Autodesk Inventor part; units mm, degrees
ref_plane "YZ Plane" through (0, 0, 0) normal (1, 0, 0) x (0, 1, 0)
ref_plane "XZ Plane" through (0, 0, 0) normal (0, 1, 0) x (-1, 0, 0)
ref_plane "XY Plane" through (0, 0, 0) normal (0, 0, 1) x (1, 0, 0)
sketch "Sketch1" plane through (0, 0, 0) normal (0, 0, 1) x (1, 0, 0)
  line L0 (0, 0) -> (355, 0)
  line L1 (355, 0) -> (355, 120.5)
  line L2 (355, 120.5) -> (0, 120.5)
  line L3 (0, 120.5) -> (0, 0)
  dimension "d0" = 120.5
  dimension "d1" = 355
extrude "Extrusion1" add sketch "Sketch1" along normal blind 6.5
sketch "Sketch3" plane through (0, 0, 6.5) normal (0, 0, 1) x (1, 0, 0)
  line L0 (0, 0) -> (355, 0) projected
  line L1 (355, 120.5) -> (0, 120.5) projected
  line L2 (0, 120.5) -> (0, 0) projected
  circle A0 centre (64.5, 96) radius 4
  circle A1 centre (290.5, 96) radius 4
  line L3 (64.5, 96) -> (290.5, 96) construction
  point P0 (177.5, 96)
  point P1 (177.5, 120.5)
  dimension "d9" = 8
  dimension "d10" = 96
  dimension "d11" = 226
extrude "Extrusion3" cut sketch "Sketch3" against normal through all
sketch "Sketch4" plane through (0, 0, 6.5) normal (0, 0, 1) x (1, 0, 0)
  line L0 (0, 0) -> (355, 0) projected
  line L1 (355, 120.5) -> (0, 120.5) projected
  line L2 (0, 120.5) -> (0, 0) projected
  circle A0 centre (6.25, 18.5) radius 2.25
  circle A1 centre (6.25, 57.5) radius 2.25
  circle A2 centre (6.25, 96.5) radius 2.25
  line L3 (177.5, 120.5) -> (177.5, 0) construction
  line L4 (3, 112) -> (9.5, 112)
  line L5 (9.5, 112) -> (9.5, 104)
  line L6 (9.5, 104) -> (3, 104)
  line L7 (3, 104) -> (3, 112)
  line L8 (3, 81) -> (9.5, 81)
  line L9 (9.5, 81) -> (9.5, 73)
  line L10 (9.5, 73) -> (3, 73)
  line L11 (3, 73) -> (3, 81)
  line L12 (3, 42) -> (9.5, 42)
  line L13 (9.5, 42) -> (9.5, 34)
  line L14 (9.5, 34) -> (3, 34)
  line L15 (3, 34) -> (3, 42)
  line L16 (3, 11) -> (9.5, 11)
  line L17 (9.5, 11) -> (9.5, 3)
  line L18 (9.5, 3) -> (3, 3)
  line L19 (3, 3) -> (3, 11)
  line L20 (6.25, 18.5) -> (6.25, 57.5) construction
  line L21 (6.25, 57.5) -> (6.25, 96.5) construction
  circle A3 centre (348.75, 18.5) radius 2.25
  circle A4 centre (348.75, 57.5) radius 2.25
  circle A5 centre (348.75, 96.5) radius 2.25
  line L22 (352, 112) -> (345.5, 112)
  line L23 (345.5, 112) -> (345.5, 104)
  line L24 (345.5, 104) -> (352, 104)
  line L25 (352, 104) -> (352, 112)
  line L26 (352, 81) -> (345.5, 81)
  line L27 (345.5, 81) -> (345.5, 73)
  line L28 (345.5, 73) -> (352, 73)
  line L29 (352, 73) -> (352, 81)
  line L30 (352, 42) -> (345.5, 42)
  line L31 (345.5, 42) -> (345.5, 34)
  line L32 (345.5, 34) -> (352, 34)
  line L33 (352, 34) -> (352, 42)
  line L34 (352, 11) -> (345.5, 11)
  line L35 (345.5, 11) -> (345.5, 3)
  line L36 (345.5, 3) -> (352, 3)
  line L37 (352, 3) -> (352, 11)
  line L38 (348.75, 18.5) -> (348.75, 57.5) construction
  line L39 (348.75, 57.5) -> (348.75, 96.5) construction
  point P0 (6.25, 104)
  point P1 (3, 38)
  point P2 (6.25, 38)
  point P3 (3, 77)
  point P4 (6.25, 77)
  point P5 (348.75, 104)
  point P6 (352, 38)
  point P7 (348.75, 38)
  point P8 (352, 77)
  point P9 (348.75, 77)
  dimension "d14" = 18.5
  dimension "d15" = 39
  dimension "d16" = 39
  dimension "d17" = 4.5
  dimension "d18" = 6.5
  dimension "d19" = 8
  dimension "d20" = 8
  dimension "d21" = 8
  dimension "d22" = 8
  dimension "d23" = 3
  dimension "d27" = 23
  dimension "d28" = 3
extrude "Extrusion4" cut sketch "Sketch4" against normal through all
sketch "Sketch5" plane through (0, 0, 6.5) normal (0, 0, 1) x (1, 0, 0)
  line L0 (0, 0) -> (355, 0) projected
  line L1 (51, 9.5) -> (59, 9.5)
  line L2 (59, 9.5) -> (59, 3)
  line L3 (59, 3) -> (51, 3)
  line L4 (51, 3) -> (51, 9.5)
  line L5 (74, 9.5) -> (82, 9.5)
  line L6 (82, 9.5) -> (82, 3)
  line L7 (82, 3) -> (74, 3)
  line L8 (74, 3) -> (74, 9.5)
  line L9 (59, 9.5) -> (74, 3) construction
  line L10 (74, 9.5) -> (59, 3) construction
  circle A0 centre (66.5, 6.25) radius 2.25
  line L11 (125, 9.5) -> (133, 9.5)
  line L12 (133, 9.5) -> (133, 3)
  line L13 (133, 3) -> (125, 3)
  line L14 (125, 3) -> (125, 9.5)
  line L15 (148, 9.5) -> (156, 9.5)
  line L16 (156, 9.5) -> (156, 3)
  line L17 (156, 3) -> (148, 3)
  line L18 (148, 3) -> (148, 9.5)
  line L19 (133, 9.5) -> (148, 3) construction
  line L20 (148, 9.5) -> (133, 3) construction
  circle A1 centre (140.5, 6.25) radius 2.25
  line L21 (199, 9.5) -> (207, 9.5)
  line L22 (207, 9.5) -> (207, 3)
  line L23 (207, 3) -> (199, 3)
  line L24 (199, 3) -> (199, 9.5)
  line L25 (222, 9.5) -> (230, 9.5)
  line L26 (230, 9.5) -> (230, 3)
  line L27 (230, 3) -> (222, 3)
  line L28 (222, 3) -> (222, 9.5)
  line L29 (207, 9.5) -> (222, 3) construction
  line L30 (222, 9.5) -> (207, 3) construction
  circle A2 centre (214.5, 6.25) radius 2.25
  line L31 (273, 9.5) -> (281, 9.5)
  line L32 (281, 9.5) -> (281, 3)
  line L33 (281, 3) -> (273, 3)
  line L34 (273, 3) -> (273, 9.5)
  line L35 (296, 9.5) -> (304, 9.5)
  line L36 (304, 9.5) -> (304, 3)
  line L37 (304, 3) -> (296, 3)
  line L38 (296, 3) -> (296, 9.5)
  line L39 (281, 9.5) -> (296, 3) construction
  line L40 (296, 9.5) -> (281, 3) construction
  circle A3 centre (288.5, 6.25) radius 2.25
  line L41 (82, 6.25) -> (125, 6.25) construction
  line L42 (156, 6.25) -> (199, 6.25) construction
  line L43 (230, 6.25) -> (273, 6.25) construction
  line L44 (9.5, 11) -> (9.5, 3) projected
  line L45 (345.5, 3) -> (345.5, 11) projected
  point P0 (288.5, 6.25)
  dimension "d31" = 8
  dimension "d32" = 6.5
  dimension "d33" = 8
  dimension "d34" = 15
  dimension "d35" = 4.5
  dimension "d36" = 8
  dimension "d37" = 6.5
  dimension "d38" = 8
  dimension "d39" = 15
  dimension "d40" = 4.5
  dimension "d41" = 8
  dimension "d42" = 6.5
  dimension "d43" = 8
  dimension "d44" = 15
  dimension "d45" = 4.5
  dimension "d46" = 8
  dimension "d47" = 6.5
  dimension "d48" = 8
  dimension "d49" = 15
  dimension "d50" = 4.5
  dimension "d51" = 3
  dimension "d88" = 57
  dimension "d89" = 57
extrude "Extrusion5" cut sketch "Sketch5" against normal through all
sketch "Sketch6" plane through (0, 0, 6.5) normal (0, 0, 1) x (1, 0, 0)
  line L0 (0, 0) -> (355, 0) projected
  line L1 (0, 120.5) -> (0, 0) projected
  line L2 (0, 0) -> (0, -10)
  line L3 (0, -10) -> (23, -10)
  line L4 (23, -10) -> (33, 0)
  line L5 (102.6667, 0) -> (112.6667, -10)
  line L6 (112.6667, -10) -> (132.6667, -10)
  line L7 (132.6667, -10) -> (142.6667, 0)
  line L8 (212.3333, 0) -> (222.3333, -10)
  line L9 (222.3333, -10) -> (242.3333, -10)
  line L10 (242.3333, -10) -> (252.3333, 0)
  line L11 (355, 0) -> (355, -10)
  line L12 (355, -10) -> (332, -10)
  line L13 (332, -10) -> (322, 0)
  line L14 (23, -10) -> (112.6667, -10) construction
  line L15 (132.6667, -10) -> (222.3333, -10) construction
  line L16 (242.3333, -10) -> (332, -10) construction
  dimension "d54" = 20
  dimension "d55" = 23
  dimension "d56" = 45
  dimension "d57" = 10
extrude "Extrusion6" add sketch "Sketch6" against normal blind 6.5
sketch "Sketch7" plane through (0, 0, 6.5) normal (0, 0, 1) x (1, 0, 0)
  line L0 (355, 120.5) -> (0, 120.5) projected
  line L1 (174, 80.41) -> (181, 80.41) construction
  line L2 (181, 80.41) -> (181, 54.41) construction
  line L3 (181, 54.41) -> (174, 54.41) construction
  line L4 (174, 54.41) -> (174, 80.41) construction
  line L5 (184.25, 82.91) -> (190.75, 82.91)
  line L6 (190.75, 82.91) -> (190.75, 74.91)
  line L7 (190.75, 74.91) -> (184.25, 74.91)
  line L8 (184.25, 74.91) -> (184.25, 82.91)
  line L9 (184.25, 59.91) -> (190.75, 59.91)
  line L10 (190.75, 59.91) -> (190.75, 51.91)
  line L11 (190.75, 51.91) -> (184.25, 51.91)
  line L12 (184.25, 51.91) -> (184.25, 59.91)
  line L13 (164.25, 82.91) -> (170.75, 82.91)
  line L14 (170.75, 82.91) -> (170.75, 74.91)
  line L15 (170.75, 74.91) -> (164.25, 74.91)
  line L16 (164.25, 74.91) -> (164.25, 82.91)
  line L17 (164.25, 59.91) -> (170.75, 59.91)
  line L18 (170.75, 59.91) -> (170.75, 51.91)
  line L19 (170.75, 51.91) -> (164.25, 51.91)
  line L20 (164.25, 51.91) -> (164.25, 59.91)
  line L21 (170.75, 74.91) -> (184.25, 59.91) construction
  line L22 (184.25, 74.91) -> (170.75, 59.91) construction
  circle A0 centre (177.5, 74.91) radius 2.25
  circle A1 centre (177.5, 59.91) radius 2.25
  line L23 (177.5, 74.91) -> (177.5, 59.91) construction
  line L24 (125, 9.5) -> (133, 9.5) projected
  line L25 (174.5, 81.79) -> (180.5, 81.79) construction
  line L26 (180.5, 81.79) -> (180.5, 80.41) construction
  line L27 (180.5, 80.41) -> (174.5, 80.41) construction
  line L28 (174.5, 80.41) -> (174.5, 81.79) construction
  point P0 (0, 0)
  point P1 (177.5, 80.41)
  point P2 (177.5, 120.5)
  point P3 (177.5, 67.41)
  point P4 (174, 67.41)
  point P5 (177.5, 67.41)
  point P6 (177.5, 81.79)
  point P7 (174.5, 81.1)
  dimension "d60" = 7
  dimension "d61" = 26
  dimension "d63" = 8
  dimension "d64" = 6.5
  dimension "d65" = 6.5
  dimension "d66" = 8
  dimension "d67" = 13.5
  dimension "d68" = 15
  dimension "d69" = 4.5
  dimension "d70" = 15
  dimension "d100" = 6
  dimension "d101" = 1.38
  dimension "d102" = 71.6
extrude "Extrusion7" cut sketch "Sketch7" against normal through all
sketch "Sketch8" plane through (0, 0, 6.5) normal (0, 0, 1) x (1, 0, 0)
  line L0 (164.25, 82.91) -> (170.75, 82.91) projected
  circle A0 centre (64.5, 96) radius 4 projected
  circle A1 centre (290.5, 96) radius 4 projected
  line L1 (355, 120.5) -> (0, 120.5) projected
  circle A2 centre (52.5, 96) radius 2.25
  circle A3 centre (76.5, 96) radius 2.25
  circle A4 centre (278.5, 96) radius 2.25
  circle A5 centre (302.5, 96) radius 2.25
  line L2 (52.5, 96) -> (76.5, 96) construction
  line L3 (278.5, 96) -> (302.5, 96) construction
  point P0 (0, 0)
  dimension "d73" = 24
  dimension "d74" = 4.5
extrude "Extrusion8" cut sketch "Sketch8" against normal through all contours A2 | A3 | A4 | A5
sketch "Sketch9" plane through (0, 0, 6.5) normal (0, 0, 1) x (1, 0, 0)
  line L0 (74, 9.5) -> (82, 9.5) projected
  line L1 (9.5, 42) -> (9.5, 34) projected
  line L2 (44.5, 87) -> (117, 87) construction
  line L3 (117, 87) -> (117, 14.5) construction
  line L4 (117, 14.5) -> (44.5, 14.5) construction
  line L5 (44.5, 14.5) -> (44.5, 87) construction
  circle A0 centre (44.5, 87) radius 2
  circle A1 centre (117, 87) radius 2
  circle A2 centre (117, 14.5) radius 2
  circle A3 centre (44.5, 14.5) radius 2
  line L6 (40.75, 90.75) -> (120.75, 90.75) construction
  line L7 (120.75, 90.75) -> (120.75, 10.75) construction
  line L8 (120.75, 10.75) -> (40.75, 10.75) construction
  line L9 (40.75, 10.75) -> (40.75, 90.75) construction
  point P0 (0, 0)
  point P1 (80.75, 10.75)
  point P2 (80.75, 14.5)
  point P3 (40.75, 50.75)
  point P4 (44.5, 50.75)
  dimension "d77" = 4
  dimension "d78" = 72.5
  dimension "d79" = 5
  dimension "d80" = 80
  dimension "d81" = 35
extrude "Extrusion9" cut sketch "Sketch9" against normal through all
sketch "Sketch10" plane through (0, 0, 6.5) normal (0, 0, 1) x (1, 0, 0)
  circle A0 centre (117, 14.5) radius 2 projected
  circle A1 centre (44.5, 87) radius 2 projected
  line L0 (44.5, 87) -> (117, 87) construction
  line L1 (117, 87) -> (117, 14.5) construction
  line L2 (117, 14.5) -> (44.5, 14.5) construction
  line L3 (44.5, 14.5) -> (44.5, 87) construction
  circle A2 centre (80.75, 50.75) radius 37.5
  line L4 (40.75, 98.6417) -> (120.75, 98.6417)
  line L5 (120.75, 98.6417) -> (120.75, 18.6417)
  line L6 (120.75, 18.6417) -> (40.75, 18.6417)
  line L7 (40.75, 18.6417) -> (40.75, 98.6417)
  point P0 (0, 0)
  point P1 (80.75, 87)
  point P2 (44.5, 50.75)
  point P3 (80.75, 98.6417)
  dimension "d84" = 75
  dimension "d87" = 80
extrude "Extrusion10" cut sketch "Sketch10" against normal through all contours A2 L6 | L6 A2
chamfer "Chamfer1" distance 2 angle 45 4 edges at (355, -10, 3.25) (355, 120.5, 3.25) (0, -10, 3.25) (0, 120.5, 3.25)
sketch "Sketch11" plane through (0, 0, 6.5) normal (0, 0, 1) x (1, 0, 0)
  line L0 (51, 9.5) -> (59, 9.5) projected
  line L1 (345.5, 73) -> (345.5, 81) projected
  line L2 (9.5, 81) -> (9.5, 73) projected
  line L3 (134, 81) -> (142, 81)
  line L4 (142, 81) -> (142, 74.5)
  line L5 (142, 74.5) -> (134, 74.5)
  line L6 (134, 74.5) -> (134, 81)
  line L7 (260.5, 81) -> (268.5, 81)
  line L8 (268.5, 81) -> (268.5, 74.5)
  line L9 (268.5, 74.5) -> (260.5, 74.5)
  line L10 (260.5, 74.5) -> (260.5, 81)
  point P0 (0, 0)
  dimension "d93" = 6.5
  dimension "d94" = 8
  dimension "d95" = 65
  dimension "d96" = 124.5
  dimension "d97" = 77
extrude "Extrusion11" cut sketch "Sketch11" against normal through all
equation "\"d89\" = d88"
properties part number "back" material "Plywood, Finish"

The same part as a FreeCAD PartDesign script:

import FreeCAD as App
import Part
import Sketcher


def edges_at(feature, points):
    """Names of the edges that pass closest to the given points."""
    edges = feature.Shape.Edges
    near = lambda p: min(range(len(edges)), key=lambda i: edges[i].distToShape(Part.Vertex(*p))[0])
    return sorted({f"Edge{near(p) + 1}" for p in points})

doc = App.newDocument("Part")
body = doc.addObject("PartDesign::Body", "Body")

# Sketch on XY plane
sketch1 = doc.addObject("Sketcher::SketchObject", "Sketch")
body.addObject(sketch1)
sketch1.AttachmentSupport = (doc.XY_Plane, [""])
sketch1.MapMode = "FlatFace"
sketch1.addGeometry([
    Part.LineSegment(App.Vector(0, 120, 0), App.Vector(0, 0, 0)),
    Part.LineSegment(App.Vector(0, 0, 0), App.Vector(355, 0, 0)),
    Part.LineSegment(App.Vector(355, 0, 0), App.Vector(355, 120, 0)),
    Part.LineSegment(App.Vector(355, 120, 0), App.Vector(0, 120, 0)),
], False)
sketch1.addConstraint([
    Sketcher.Constraint("Coincident", 0, 2, 1, 1),
    Sketcher.Constraint("Coincident", 1, 2, 2, 1),
    Sketcher.Constraint("Coincident", 2, 2, 3, 1),
    Sketcher.Constraint("Coincident", 3, 2, 0, 1),
    Sketcher.Constraint("Vertical", 0),
    Sketcher.Constraint("Horizontal", 1),
    Sketcher.Constraint("Vertical", 2),
    Sketcher.Constraint("Horizontal", 3),
    Sketcher.Constraint("Coincident", 0, 2, -1, 1),
    Sketcher.Constraint("DistanceX", 1, 1, 1, 2, 355.0),
    Sketcher.Constraint("DistanceY", 0, 2, 0, 1, 120.5),
])
pad1 = doc.addObject("PartDesign::Pad", "Pad")
body.addObject(pad1)
pad1.Profile = sketch1
pad1.Length = 6.5

# Sketch on XY plane
sketch2 = doc.addObject("Sketcher::SketchObject", "Sketch001")
body.addObject(sketch2)
sketch2.AttachmentSupport = (doc.XY_Plane, [""])
sketch2.MapMode = "FlatFace"
sketch2.AttachmentOffset = App.Placement(App.Vector(0, 0, 6.5), App.Rotation())
sketch2.addGeometry([
    Part.Circle(App.Vector(64.5, 96, 0), App.Vector(0, 0, 1), 4),
    Part.Circle(App.Vector(290.5, 96, 0), App.Vector(0, 0, 1), 4),
], False)
sketch2.addConstraint([
    Sketcher.Constraint("Equal", 0, 1),
    Sketcher.Constraint("Horizontal", 0, 3, 1, 3),
    Sketcher.Constraint("Diameter", 0, 8.0),
    Sketcher.Constraint("DistanceY", -1, 1, 0, 3, 96.0),
    Sketcher.Constraint("DistanceX", 0, 3, 1, 3, 226.0),
    Sketcher.Constraint("DistanceX", -1, 1, 0, 3, 64.5),
])
pocket1 = doc.addObject("PartDesign::Pocket", "Pocket")
body.addObject(pocket1)
pocket1.Profile = sketch2
pocket1.Type = "ThroughAll"

# Sketch on XY plane
sketch3 = doc.addObject("Sketcher::SketchObject", "Sketch002")
body.addObject(sketch3)
sketch3.AttachmentSupport = (doc.XY_Plane, [""])
sketch3.MapMode = "FlatFace"
sketch3.AttachmentOffset = App.Placement(App.Vector(0, 0, 6.5), App.Rotation())
sketch3.addGeometry([
    Part.Circle(App.Vector(6.2, 18.5, 0), App.Vector(0, 0, 1), 2.2),  # 0
    Part.Circle(App.Vector(6.2, 57.5, 0), App.Vector(0, 0, 1), 2.2),  # 1
    Part.Circle(App.Vector(6.2, 96.5, 0), App.Vector(0, 0, 1), 2.2),  # 2
    Part.LineSegment(App.Vector(9.5, 112, 0), App.Vector(3, 112, 0)),  # 3
    Part.LineSegment(App.Vector(3, 112, 0), App.Vector(3, 104, 0)),  # 4
    Part.LineSegment(App.Vector(3, 104, 0), App.Vector(9.5, 104, 0)),  # 5
    Part.LineSegment(App.Vector(9.5, 104, 0), App.Vector(9.5, 112, 0)),  # 6
    Part.LineSegment(App.Vector(9.5, 81, 0), App.Vector(3, 81, 0)),  # 7
    Part.LineSegment(App.Vector(3, 81, 0), App.Vector(3, 73, 0)),  # 8
    Part.LineSegment(App.Vector(3, 73, 0), App.Vector(9.5, 73, 0)),  # 9
    Part.LineSegment(App.Vector(9.5, 73, 0), App.Vector(9.5, 81, 0)),  # 10
    Part.LineSegment(App.Vector(9.5, 42, 0), App.Vector(3, 42, 0)),  # 11
    Part.LineSegment(App.Vector(3, 42, 0), App.Vector(3, 34, 0)),  # 12
    Part.LineSegment(App.Vector(3, 34, 0), App.Vector(9.5, 34, 0)),  # 13
    Part.LineSegment(App.Vector(9.5, 34, 0), App.Vector(9.5, 42, 0)),  # 14
    Part.LineSegment(App.Vector(9.5, 11, 0), App.Vector(3, 11, 0)),  # 15
    Part.LineSegment(App.Vector(3, 11, 0), App.Vector(3, 3, 0)),  # 16
    Part.LineSegment(App.Vector(3, 3, 0), App.Vector(9.5, 3, 0)),  # 17
    Part.LineSegment(App.Vector(9.5, 3, 0), App.Vector(9.5, 11, 0)),  # 18
    Part.Circle(App.Vector(348.8, 18.5, 0), App.Vector(0, 0, 1), 2.2),  # 19
    Part.Circle(App.Vector(348.8, 57.5, 0), App.Vector(0, 0, 1), 2.2),  # 20
    Part.Circle(App.Vector(348.8, 96.5, 0), App.Vector(0, 0, 1), 2.2),  # 21
    Part.LineSegment(App.Vector(352, 104, 0), App.Vector(352, 112, 0)),  # 22
    Part.LineSegment(App.Vector(352, 112, 0), App.Vector(345.5, 112, 0)),  # 23
    Part.LineSegment(App.Vector(345.5, 112, 0), App.Vector(345.5, 104, 0)),  # 24
    Part.LineSegment(App.Vector(345.5, 104, 0), App.Vector(352, 104, 0)),  # 25
    Part.LineSegment(App.Vector(352, 73, 0), App.Vector(352, 81, 0)),  # 26
    Part.LineSegment(App.Vector(352, 81, 0), App.Vector(345.5, 81, 0)),  # 27
    Part.LineSegment(App.Vector(345.5, 81, 0), App.Vector(345.5, 73, 0)),  # 28
    Part.LineSegment(App.Vector(345.5, 73, 0), App.Vector(352, 73, 0)),  # 29
    Part.LineSegment(App.Vector(352, 34, 0), App.Vector(352, 42, 0)),  # 30
    Part.LineSegment(App.Vector(352, 42, 0), App.Vector(345.5, 42, 0)),  # 31
    Part.LineSegment(App.Vector(345.5, 42, 0), App.Vector(345.5, 34, 0)),  # 32
    Part.LineSegment(App.Vector(345.5, 34, 0), App.Vector(352, 34, 0)),  # 33
    Part.LineSegment(App.Vector(352, 3, 0), App.Vector(352, 11, 0)),  # 34
    Part.LineSegment(App.Vector(352, 11, 0), App.Vector(345.5, 11, 0)),  # 35
    Part.LineSegment(App.Vector(345.5, 11, 0), App.Vector(345.5, 3, 0)),  # 36
    Part.LineSegment(App.Vector(345.5, 3, 0), App.Vector(352, 3, 0)),  # 37
], False)
sketch3.addConstraint([
    Sketcher.Constraint("Coincident", 3, 2, 4, 1),
    Sketcher.Constraint("Coincident", 4, 2, 5, 1),
    Sketcher.Constraint("Coincident", 5, 2, 6, 1),
    Sketcher.Constraint("Coincident", 6, 2, 3, 1),
    Sketcher.Constraint("Coincident", 7, 2, 8, 1),
    Sketcher.Constraint("Coincident", 8, 2, 9, 1),
    Sketcher.Constraint("Coincident", 9, 2, 10, 1),
    Sketcher.Constraint("Coincident", 10, 2, 7, 1),
    Sketcher.Constraint("Coincident", 11, 2, 12, 1),
    Sketcher.Constraint("Coincident", 12, 2, 13, 1),
    Sketcher.Constraint("Coincident", 13, 2, 14, 1),
    Sketcher.Constraint("Coincident", 14, 2, 11, 1),
    Sketcher.Constraint("Coincident", 15, 2, 16, 1),
    Sketcher.Constraint("Coincident", 16, 2, 17, 1),
    Sketcher.Constraint("Coincident", 17, 2, 18, 1),
    Sketcher.Constraint("Coincident", 18, 2, 15, 1),
    Sketcher.Constraint("Coincident", 22, 2, 23, 1),
    Sketcher.Constraint("Coincident", 23, 2, 24, 1),
    Sketcher.Constraint("Coincident", 24, 2, 25, 1),
    Sketcher.Constraint("Coincident", 25, 2, 22, 1),
    Sketcher.Constraint("Coincident", 26, 2, 27, 1),
    Sketcher.Constraint("Coincident", 27, 2, 28, 1),
    Sketcher.Constraint("Coincident", 28, 2, 29, 1),
    Sketcher.Constraint("Coincident", 29, 2, 26, 1),
    Sketcher.Constraint("Coincident", 30, 2, 31, 1),
    Sketcher.Constraint("Coincident", 31, 2, 32, 1),
    Sketcher.Constraint("Coincident", 32, 2, 33, 1),
    Sketcher.Constraint("Coincident", 33, 2, 30, 1),
    Sketcher.Constraint("Coincident", 34, 2, 35, 1),
    Sketcher.Constraint("Coincident", 35, 2, 36, 1),
    Sketcher.Constraint("Coincident", 36, 2, 37, 1),
    Sketcher.Constraint("Coincident", 37, 2, 34, 1),
    Sketcher.Constraint("Horizontal", 3),
    Sketcher.Constraint("Vertical", 4),
    Sketcher.Constraint("Horizontal", 5),
    Sketcher.Constraint("Vertical", 6),
    Sketcher.Constraint("Horizontal", 7),
    Sketcher.Constraint("Vertical", 8),
    Sketcher.Constraint("Horizontal", 9),
    Sketcher.Constraint("Vertical", 10),
    Sketcher.Constraint("Horizontal", 11),
    Sketcher.Constraint("Vertical", 12),
    Sketcher.Constraint("Horizontal", 13),
    Sketcher.Constraint("Vertical", 14),
    Sketcher.Constraint("Horizontal", 15),
    Sketcher.Constraint("Vertical", 16),
    Sketcher.Constraint("Horizontal", 17),
    Sketcher.Constraint("Vertical", 18),
    Sketcher.Constraint("Vertical", 22),
    Sketcher.Constraint("Horizontal", 23),
    Sketcher.Constraint("Vertical", 24),
    Sketcher.Constraint("Horizontal", 25),
    Sketcher.Constraint("Vertical", 26),
    Sketcher.Constraint("Horizontal", 27),
    Sketcher.Constraint("Vertical", 28),
    Sketcher.Constraint("Horizontal", 29),
    Sketcher.Constraint("Vertical", 30),
    Sketcher.Constraint("Horizontal", 31),
    Sketcher.Constraint("Vertical", 32),
    Sketcher.Constraint("Horizontal", 33),
    Sketcher.Constraint("Vertical", 34),
    Sketcher.Constraint("Horizontal", 35),
    Sketcher.Constraint("Vertical", 36),
    Sketcher.Constraint("Horizontal", 37),
    Sketcher.Constraint("Equal", 0, 1),
    Sketcher.Constraint("Equal", 1, 2),
    Sketcher.Constraint("Equal", 2, 19),
    Sketcher.Constraint("Equal", 19, 20),
    Sketcher.Constraint("Equal", 20, 21),
    Sketcher.Constraint("Horizontal", 0, 3, 19, 3),
    Sketcher.Constraint("Horizontal", 1, 3, 20, 3),
    Sketcher.Constraint("Horizontal", 2, 3, 21, 3),
    Sketcher.Constraint("Horizontal", 6, 2, 22, 2),
    Sketcher.Constraint("Horizontal", 5, 2, 24, 2),
    Sketcher.Constraint("Horizontal", 10, 2, 26, 2),
    Sketcher.Constraint("Horizontal", 9, 2, 28, 2),
    Sketcher.Constraint("Horizontal", 14, 2, 30, 2),
    Sketcher.Constraint("Horizontal", 13, 2, 32, 2),
    Sketcher.Constraint("Horizontal", 18, 2, 34, 2),
    Sketcher.Constraint("Horizontal", 17, 2, 36, 2),
    Sketcher.Constraint("Vertical", 0, 3, 1, 3),
    Sketcher.Constraint("Vertical", 1, 3, 2, 3),
    Sketcher.Constraint("Vertical", 19, 3, 20, 3),
    Sketcher.Constraint("Vertical", 20, 3, 21, 3),
    Sketcher.Constraint("Vertical", 4, 2, 7, 2),
    Sketcher.Constraint("Vertical", 6, 2, 9, 2),
    Sketcher.Constraint("Vertical", 8, 2, 11, 2),
    Sketcher.Constraint("Vertical", 10, 2, 13, 2),
    Sketcher.Constraint("Vertical", 12, 2, 15, 2),
    Sketcher.Constraint("Vertical", 14, 2, 17, 2),
    Sketcher.Constraint("Vertical", 25, 2, 26, 2),
    Sketcher.Constraint("Vertical", 24, 2, 27, 2),
    Sketcher.Constraint("Vertical", 29, 2, 30, 2),
    Sketcher.Constraint("Vertical", 28, 2, 31, 2),
    Sketcher.Constraint("Vertical", 33, 2, 34, 2),
    Sketcher.Constraint("Vertical", 32, 2, 35, 2),
    Sketcher.Constraint("Equal", 17, 23),
    Sketcher.Constraint("Equal", 6, 8),
    Sketcher.Constraint("Equal", 10, 12),
    Sketcher.Constraint("Equal", 14, 16),
    Sketcher.Constraint("Diameter", 0, 4.5),
    Sketcher.Constraint("DistanceY", 4, 2, 4, 1, 8.0),
    Sketcher.Constraint("DistanceX", 3, 2, 3, 1, 6.5),
    Sketcher.Constraint("DistanceX", -1, 1, 3, 2, 3.0),
    Sketcher.Constraint("DistanceY", -1, 1, 16, 2, 3.0),
    Sketcher.Constraint("DistanceY", 0, 3, 1, 3, 39.0),
    Sketcher.Constraint("DistanceY", 1, 3, 2, 3, 39.0),
    Sketcher.Constraint("DistanceY", 7, 2, 4, 2, 23.0),
    Sketcher.Constraint("DistanceY", 11, 2, 7, 2, 39.0),
    Sketcher.Constraint("DistanceY", 15, 2, 12, 2, 23.0),
    Sketcher.Constraint("DistanceY", -1, 1, 0, 3, 18.5),
    Sketcher.Constraint("DistanceX", -1, 1, 22, 2, 352.0),
    Sketcher.Constraint("DistanceX", 0, 3, 19, 3, 342.5),
    Sketcher.Constraint("DistanceX", -1, 1, 0, 3, 6.25),
])
pocket2 = doc.addObject("PartDesign::Pocket", "Pocket001")
body.addObject(pocket2)
pocket2.Profile = sketch3
pocket2.Type = "ThroughAll"

# Sketch on XY plane
sketch4 = doc.addObject("Sketcher::SketchObject", "Sketch003")
body.addObject(sketch4)
sketch4.AttachmentSupport = (doc.XY_Plane, [""])
sketch4.MapMode = "FlatFace"
sketch4.AttachmentOffset = App.Placement(App.Vector(0, 0, 6.5), App.Rotation())
sketch4.addGeometry([
    Part.LineSegment(App.Vector(59, 9.5, 0), App.Vector(51, 9.5, 0)),  # 0
    Part.LineSegment(App.Vector(51, 9.5, 0), App.Vector(51, 3, 0)),  # 1
    Part.LineSegment(App.Vector(51, 3, 0), App.Vector(59, 3, 0)),  # 2
    Part.LineSegment(App.Vector(59, 3, 0), App.Vector(59, 9.5, 0)),  # 3
    Part.LineSegment(App.Vector(82, 9.5, 0), App.Vector(74, 9.5, 0)),  # 4
    Part.LineSegment(App.Vector(74, 9.5, 0), App.Vector(74, 3, 0)),  # 5
    Part.LineSegment(App.Vector(74, 3, 0), App.Vector(82, 3, 0)),  # 6
    Part.LineSegment(App.Vector(82, 3, 0), App.Vector(82, 9.5, 0)),  # 7
    Part.Circle(App.Vector(66.5, 6.2, 0), App.Vector(0, 0, 1), 2.2),  # 8
    Part.LineSegment(App.Vector(133, 9.5, 0), App.Vector(125, 9.5, 0)),  # 9
    Part.LineSegment(App.Vector(125, 9.5, 0), App.Vector(125, 3, 0)),  # 10
    Part.LineSegment(App.Vector(125, 3, 0), App.Vector(133, 3, 0)),  # 11
    Part.LineSegment(App.Vector(133, 3, 0), App.Vector(133, 9.5, 0)),  # 12
    Part.LineSegment(App.Vector(156, 9.5, 0), App.Vector(148, 9.5, 0)),  # 13
    Part.LineSegment(App.Vector(148, 9.5, 0), App.Vector(148, 3, 0)),  # 14
    Part.LineSegment(App.Vector(148, 3, 0), App.Vector(156, 3, 0)),  # 15
    Part.LineSegment(App.Vector(156, 3, 0), App.Vector(156, 9.5, 0)),  # 16
    Part.Circle(App.Vector(140.5, 6.2, 0), App.Vector(0, 0, 1), 2.2),  # 17
    Part.LineSegment(App.Vector(207, 9.5, 0), App.Vector(199, 9.5, 0)),  # 18
    Part.LineSegment(App.Vector(199, 9.5, 0), App.Vector(199, 3, 0)),  # 19
    Part.LineSegment(App.Vector(199, 3, 0), App.Vector(207, 3, 0)),  # 20
    Part.LineSegment(App.Vector(207, 3, 0), App.Vector(207, 9.5, 0)),  # 21
    Part.LineSegment(App.Vector(230, 9.5, 0), App.Vector(222, 9.5, 0)),  # 22
    Part.LineSegment(App.Vector(222, 9.5, 0), App.Vector(222, 3, 0)),  # 23
    Part.LineSegment(App.Vector(222, 3, 0), App.Vector(230, 3, 0)),  # 24
    Part.LineSegment(App.Vector(230, 3, 0), App.Vector(230, 9.5, 0)),  # 25
    Part.Circle(App.Vector(214.5, 6.2, 0), App.Vector(0, 0, 1), 2.2),  # 26
    Part.LineSegment(App.Vector(281, 9.5, 0), App.Vector(273, 9.5, 0)),  # 27
    Part.LineSegment(App.Vector(273, 9.5, 0), App.Vector(273, 3, 0)),  # 28
    Part.LineSegment(App.Vector(273, 3, 0), App.Vector(281, 3, 0)),  # 29
    Part.LineSegment(App.Vector(281, 3, 0), App.Vector(281, 9.5, 0)),  # 30
    Part.LineSegment(App.Vector(304, 9.5, 0), App.Vector(296, 9.5, 0)),  # 31
    Part.LineSegment(App.Vector(296, 9.5, 0), App.Vector(296, 3, 0)),  # 32
    Part.LineSegment(App.Vector(296, 3, 0), App.Vector(304, 3, 0)),  # 33
    Part.LineSegment(App.Vector(304, 3, 0), App.Vector(304, 9.5, 0)),  # 34
    Part.Circle(App.Vector(288.5, 6.2, 0), App.Vector(0, 0, 1), 2.2),  # 35
], False)
sketch4.addConstraint([
    Sketcher.Constraint("Coincident", 0, 2, 1, 1),
    Sketcher.Constraint("Coincident", 1, 2, 2, 1),
    Sketcher.Constraint("Coincident", 2, 2, 3, 1),
    Sketcher.Constraint("Coincident", 3, 2, 0, 1),
    Sketcher.Constraint("Coincident", 4, 2, 5, 1),
    Sketcher.Constraint("Coincident", 5, 2, 6, 1),
    Sketcher.Constraint("Coincident", 6, 2, 7, 1),
    Sketcher.Constraint("Coincident", 7, 2, 4, 1),
    Sketcher.Constraint("Coincident", 9, 2, 10, 1),
    Sketcher.Constraint("Coincident", 10, 2, 11, 1),
    Sketcher.Constraint("Coincident", 11, 2, 12, 1),
    Sketcher.Constraint("Coincident", 12, 2, 9, 1),
    Sketcher.Constraint("Coincident", 13, 2, 14, 1),
    Sketcher.Constraint("Coincident", 14, 2, 15, 1),
    Sketcher.Constraint("Coincident", 15, 2, 16, 1),
    Sketcher.Constraint("Coincident", 16, 2, 13, 1),
    Sketcher.Constraint("Coincident", 18, 2, 19, 1),
    Sketcher.Constraint("Coincident", 19, 2, 20, 1),
    Sketcher.Constraint("Coincident", 20, 2, 21, 1),
    Sketcher.Constraint("Coincident", 21, 2, 18, 1),
    Sketcher.Constraint("Coincident", 22, 2, 23, 1),
    Sketcher.Constraint("Coincident", 23, 2, 24, 1),
    Sketcher.Constraint("Coincident", 24, 2, 25, 1),
    Sketcher.Constraint("Coincident", 25, 2, 22, 1),
    Sketcher.Constraint("Coincident", 27, 2, 28, 1),
    Sketcher.Constraint("Coincident", 28, 2, 29, 1),
    Sketcher.Constraint("Coincident", 29, 2, 30, 1),
    Sketcher.Constraint("Coincident", 30, 2, 27, 1),
    Sketcher.Constraint("Coincident", 31, 2, 32, 1),
    Sketcher.Constraint("Coincident", 32, 2, 33, 1),
    Sketcher.Constraint("Coincident", 33, 2, 34, 1),
    Sketcher.Constraint("Coincident", 34, 2, 31, 1),
    Sketcher.Constraint("Horizontal", 0),
    Sketcher.Constraint("Vertical", 1),
    Sketcher.Constraint("Horizontal", 2),
    Sketcher.Constraint("Vertical", 3),
    Sketcher.Constraint("Horizontal", 4),
    Sketcher.Constraint("Vertical", 5),
    Sketcher.Constraint("Horizontal", 6),
    Sketcher.Constraint("Vertical", 7),
    Sketcher.Constraint("Horizontal", 9),
    Sketcher.Constraint("Vertical", 10),
    Sketcher.Constraint("Horizontal", 11),
    Sketcher.Constraint("Vertical", 12),
    Sketcher.Constraint("Horizontal", 13),
    Sketcher.Constraint("Vertical", 14),
    Sketcher.Constraint("Horizontal", 15),
    Sketcher.Constraint("Vertical", 16),
    Sketcher.Constraint("Horizontal", 18),
    Sketcher.Constraint("Vertical", 19),
    Sketcher.Constraint("Horizontal", 20),
    Sketcher.Constraint("Vertical", 21),
    Sketcher.Constraint("Horizontal", 22),
    Sketcher.Constraint("Vertical", 23),
    Sketcher.Constraint("Horizontal", 24),
    Sketcher.Constraint("Vertical", 25),
    Sketcher.Constraint("Horizontal", 27),
    Sketcher.Constraint("Vertical", 28),
    Sketcher.Constraint("Horizontal", 29),
    Sketcher.Constraint("Vertical", 30),
    Sketcher.Constraint("Horizontal", 31),
    Sketcher.Constraint("Vertical", 32),
    Sketcher.Constraint("Horizontal", 33),
    Sketcher.Constraint("Vertical", 34),
    Sketcher.Constraint("Equal", 8, 17),
    Sketcher.Constraint("Equal", 17, 26),
    Sketcher.Constraint("Equal", 26, 35),
    Sketcher.Constraint("Horizontal", 8, 3, 17, 3),
    Sketcher.Constraint("Horizontal", 17, 3, 26, 3),
    Sketcher.Constraint("Horizontal", 26, 3, 35, 3),
    Sketcher.Constraint("Horizontal", 3, 2, 4, 2),
    Sketcher.Constraint("Horizontal", 2, 2, 5, 2),
    Sketcher.Constraint("Horizontal", 7, 2, 9, 2),
    Sketcher.Constraint("Horizontal", 6, 2, 10, 2),
    Sketcher.Constraint("Horizontal", 12, 2, 13, 2),
    Sketcher.Constraint("Horizontal", 11, 2, 14, 2),
    Sketcher.Constraint("Horizontal", 16, 2, 18, 2),
    Sketcher.Constraint("Horizontal", 15, 2, 19, 2),
    Sketcher.Constraint("Horizontal", 21, 2, 22, 2),
    Sketcher.Constraint("Horizontal", 20, 2, 23, 2),
    Sketcher.Constraint("Horizontal", 25, 2, 27, 2),
    Sketcher.Constraint("Horizontal", 24, 2, 28, 2),
    Sketcher.Constraint("Horizontal", 30, 2, 31, 2),
    Sketcher.Constraint("Horizontal", 29, 2, 32, 2),
    Sketcher.Constraint("Equal", 2, 4),
    Sketcher.Constraint("Equal", 6, 9),
    Sketcher.Constraint("Equal", 11, 13),
    Sketcher.Constraint("Equal", 15, 18),
    Sketcher.Constraint("Equal", 20, 22),
    Sketcher.Constraint("Equal", 24, 27),
    Sketcher.Constraint("Equal", 29, 31),
    Sketcher.Constraint("Diameter", 8, 4.5),
    Sketcher.Constraint("DistanceX", 0, 2, 0, 1, 8.0),
    Sketcher.Constraint("DistanceY", 1, 2, 1, 1, 6.5),
    Sketcher.Constraint("DistanceY", -1, 1, 1, 2, 3.0),
    Sketcher.Constraint("DistanceX", 3, 2, 4, 2, 15.0),
    Sketcher.Constraint("DistanceX", 12, 2, 13, 2, 15.0),
    Sketcher.Constraint("DistanceX", 21, 2, 22, 2, 15.0),
    Sketcher.Constraint("DistanceX", 30, 2, 31, 2, 15.0),
    Sketcher.Constraint("DistanceX", -1, 1, 0, 2, 51.0),
    Sketcher.Constraint("DistanceX", -1, 1, 9, 2, 125.0),
    Sketcher.Constraint("DistanceX", -1, 1, 18, 2, 199.0),
    Sketcher.Constraint("DistanceX", -1, 1, 27, 2, 273.0),
    Sketcher.Constraint("DistanceX", 8, 3, 17, 3, 74.0),
    Sketcher.Constraint("DistanceX", 17, 3, 26, 3, 74.0),
    Sketcher.Constraint("DistanceX", 26, 3, 35, 3, 74.0),
    Sketcher.Constraint("DistanceX", -1, 1, 8, 3, 66.5),
    Sketcher.Constraint("DistanceY", -1, 1, 8, 3, 6.25),
])
pocket3 = doc.addObject("PartDesign::Pocket", "Pocket002")
body.addObject(pocket3)
pocket3.Profile = sketch4
pocket3.Type = "ThroughAll"

# Sketch on XY plane
sketch5 = doc.addObject("Sketcher::SketchObject", "Sketch004")
body.addObject(sketch5)
sketch5.AttachmentSupport = (doc.XY_Plane, [""])
sketch5.MapMode = "FlatFace"
sketch5.AttachmentOffset = App.Placement(App.Vector(0, 0, 6.5), App.Rotation())
sketch5.addGeometry([
    Part.LineSegment(App.Vector(355, 0, 0), App.Vector(322, 0, 0)),  # 0
    Part.LineSegment(App.Vector(322, 0, 0), App.Vector(332, -10, 0)),  # 1
    Part.LineSegment(App.Vector(332, -10, 0), App.Vector(355, -10, 0)),  # 2
    Part.LineSegment(App.Vector(355, -10, 0), App.Vector(355, 0, 0)),  # 3
    Part.LineSegment(App.Vector(252, 0, 0), App.Vector(212, 0, 0)),  # 4
    Part.LineSegment(App.Vector(212, 0, 0), App.Vector(222, -10, 0)),  # 5
    Part.LineSegment(App.Vector(222, -10, 0), App.Vector(242, -10, 0)),  # 6
    Part.LineSegment(App.Vector(242, -10, 0), App.Vector(252, 0, 0)),  # 7
    Part.LineSegment(App.Vector(143, 0, 0), App.Vector(103, 0, 0)),  # 8
    Part.LineSegment(App.Vector(103, 0, 0), App.Vector(113, -10, 0)),  # 9
    Part.LineSegment(App.Vector(113, -10, 0), App.Vector(133, -10, 0)),  # 10
    Part.LineSegment(App.Vector(133, -10, 0), App.Vector(143, 0, 0)),  # 11
    Part.LineSegment(App.Vector(33, 0, 0), App.Vector(0, 0, 0)),  # 12
    Part.LineSegment(App.Vector(0, 0, 0), App.Vector(0, -10, 0)),  # 13
    Part.LineSegment(App.Vector(0, -10, 0), App.Vector(23, -10, 0)),  # 14
    Part.LineSegment(App.Vector(23, -10, 0), App.Vector(33, 0, 0)),  # 15
], False)
sketch5.addConstraint([
    Sketcher.Constraint("Coincident", 0, 2, 1, 1),
    Sketcher.Constraint("Coincident", 1, 2, 2, 1),
    Sketcher.Constraint("Coincident", 2, 2, 3, 1),
    Sketcher.Constraint("Coincident", 3, 2, 0, 1),
    Sketcher.Constraint("Coincident", 4, 2, 5, 1),
    Sketcher.Constraint("Coincident", 5, 2, 6, 1),
    Sketcher.Constraint("Coincident", 6, 2, 7, 1),
    Sketcher.Constraint("Coincident", 7, 2, 4, 1),
    Sketcher.Constraint("Coincident", 8, 2, 9, 1),
    Sketcher.Constraint("Coincident", 9, 2, 10, 1),
    Sketcher.Constraint("Coincident", 10, 2, 11, 1),
    Sketcher.Constraint("Coincident", 11, 2, 8, 1),
    Sketcher.Constraint("Coincident", 12, 2, 13, 1),
    Sketcher.Constraint("Coincident", 13, 2, 14, 1),
    Sketcher.Constraint("Coincident", 14, 2, 15, 1),
    Sketcher.Constraint("Coincident", 15, 2, 12, 1),
    Sketcher.Constraint("Horizontal", 0),
    Sketcher.Constraint("Horizontal", 2),
    Sketcher.Constraint("Vertical", 3),
    Sketcher.Constraint("Horizontal", 4),
    Sketcher.Constraint("Horizontal", 6),
    Sketcher.Constraint("Horizontal", 8),
    Sketcher.Constraint("Horizontal", 10),
    Sketcher.Constraint("Horizontal", 12),
    Sketcher.Constraint("Vertical", 13),
    Sketcher.Constraint("Horizontal", 14),
    Sketcher.Constraint("Coincident", 12, 2, -1, 1),
    Sketcher.Constraint("PointOnObject", 0, 2, -1),
    Sketcher.Constraint("PointOnObject", 4, 2, -1),
    Sketcher.Constraint("PointOnObject", 8, 2, -1),
    Sketcher.Constraint("Parallel", 1, 5),
    Sketcher.Constraint("Perpendicular", 5, 7),
    Sketcher.Constraint("Perpendicular", 7, 9),
    Sketcher.Constraint("Perpendicular", 9, 11),
    Sketcher.Constraint("Parallel", 11, 15),
    Sketcher.Constraint("Horizontal", 2, 2, 5, 2),
    Sketcher.Constraint("Horizontal", 6, 2, 9, 2),
    Sketcher.Constraint("Horizontal", 10, 2, 13, 2),
    Sketcher.Constraint("Equal", 4, 8),
    Sketcher.Constraint("Equal", 0, 12),
    Sketcher.Constraint("Equal", 2, 14),
    Sketcher.Constraint("DistanceX", 2, 1, 2, 2, 23.0),
    Sketcher.Constraint("DistanceX", 6, 1, 6, 2, 20.0),
    Sketcher.Constraint("DistanceY", 3, 1, 3, 2, 10.0),
    Sketcher.Constraint("DistanceX", -1, 1, 0, 2, 322.0),
    Sketcher.Constraint("DistanceX", -1, 1, 4, 2, 212.3333),
    Sketcher.Constraint("DistanceX", -1, 1, 8, 2, 102.6667),
])
pad2 = doc.addObject("PartDesign::Pad", "Pad001")
body.addObject(pad2)
pad2.Profile = sketch5
pad2.Length = 6.5
pad2.Reversed = True

# Sketch on XY plane
sketch6 = doc.addObject("Sketcher::SketchObject", "Sketch005")
body.addObject(sketch6)
sketch6.AttachmentSupport = (doc.XY_Plane, [""])
sketch6.MapMode = "FlatFace"
sketch6.AttachmentOffset = App.Placement(App.Vector(0, 0, 6.5), App.Rotation())
sketch6.addGeometry([
    Part.LineSegment(App.Vector(190.8, 82.9, 0), App.Vector(184.2, 82.9, 0)),  # 0
    Part.LineSegment(App.Vector(184.2, 82.9, 0), App.Vector(184.2, 74.9, 0)),  # 1
    Part.LineSegment(App.Vector(184.2, 74.9, 0), App.Vector(190.8, 74.9, 0)),  # 2
    Part.LineSegment(App.Vector(190.8, 74.9, 0), App.Vector(190.8, 82.9, 0)),  # 3
    Part.LineSegment(App.Vector(190.8, 59.9, 0), App.Vector(184.2, 59.9, 0)),  # 4
    Part.LineSegment(App.Vector(184.2, 59.9, 0), App.Vector(184.2, 51.9, 0)),  # 5
    Part.LineSegment(App.Vector(184.2, 51.9, 0), App.Vector(190.8, 51.9, 0)),  # 6
    Part.LineSegment(App.Vector(190.8, 51.9, 0), App.Vector(190.8, 59.9, 0)),  # 7
    Part.LineSegment(App.Vector(170.8, 82.9, 0), App.Vector(164.2, 82.9, 0)),  # 8
    Part.LineSegment(App.Vector(164.2, 82.9, 0), App.Vector(164.2, 74.9, 0)),  # 9
    Part.LineSegment(App.Vector(164.2, 74.9, 0), App.Vector(170.8, 74.9, 0)),  # 10
    Part.LineSegment(App.Vector(170.8, 74.9, 0), App.Vector(170.8, 82.9, 0)),  # 11
    Part.LineSegment(App.Vector(170.8, 59.9, 0), App.Vector(164.2, 59.9, 0)),  # 12
    Part.LineSegment(App.Vector(164.2, 59.9, 0), App.Vector(164.2, 51.9, 0)),  # 13
    Part.LineSegment(App.Vector(164.2, 51.9, 0), App.Vector(170.8, 51.9, 0)),  # 14
    Part.LineSegment(App.Vector(170.8, 51.9, 0), App.Vector(170.8, 59.9, 0)),  # 15
    Part.Circle(App.Vector(177.5, 74.9, 0), App.Vector(0, 0, 1), 2.2),  # 16
    Part.Circle(App.Vector(177.5, 59.9, 0), App.Vector(0, 0, 1), 2.2),  # 17
], False)
sketch6.addConstraint([
    Sketcher.Constraint("Coincident", 0, 2, 1, 1),
    Sketcher.Constraint("Coincident", 1, 2, 2, 1),
    Sketcher.Constraint("Coincident", 2, 2, 3, 1),
    Sketcher.Constraint("Coincident", 3, 2, 0, 1),
    Sketcher.Constraint("Coincident", 4, 2, 5, 1),
    Sketcher.Constraint("Coincident", 5, 2, 6, 1),
    Sketcher.Constraint("Coincident", 6, 2, 7, 1),
    Sketcher.Constraint("Coincident", 7, 2, 4, 1),
    Sketcher.Constraint("Coincident", 8, 2, 9, 1),
    Sketcher.Constraint("Coincident", 9, 2, 10, 1),
    Sketcher.Constraint("Coincident", 10, 2, 11, 1),
    Sketcher.Constraint("Coincident", 11, 2, 8, 1),
    Sketcher.Constraint("Coincident", 12, 2, 13, 1),
    Sketcher.Constraint("Coincident", 13, 2, 14, 1),
    Sketcher.Constraint("Coincident", 14, 2, 15, 1),
    Sketcher.Constraint("Coincident", 15, 2, 12, 1),
    Sketcher.Constraint("Horizontal", 0),
    Sketcher.Constraint("Vertical", 1),
    Sketcher.Constraint("Horizontal", 2),
    Sketcher.Constraint("Vertical", 3),
    Sketcher.Constraint("Horizontal", 4),
    Sketcher.Constraint("Vertical", 5),
    Sketcher.Constraint("Horizontal", 6),
    Sketcher.Constraint("Vertical", 7),
    Sketcher.Constraint("Horizontal", 8),
    Sketcher.Constraint("Vertical", 9),
    Sketcher.Constraint("Horizontal", 10),
    Sketcher.Constraint("Vertical", 11),
    Sketcher.Constraint("Horizontal", 12),
    Sketcher.Constraint("Vertical", 13),
    Sketcher.Constraint("Horizontal", 14),
    Sketcher.Constraint("Vertical", 15),
    Sketcher.Constraint("Equal", 16, 17),
    Sketcher.Constraint("Horizontal", 16, 3, 1, 2),
    Sketcher.Constraint("Horizontal", 17, 3, 4, 2),
    Sketcher.Constraint("Horizontal", 3, 2, 8, 2),
    Sketcher.Constraint("Horizontal", 2, 2, 9, 2),
    Sketcher.Constraint("Horizontal", 7, 2, 12, 2),
    Sketcher.Constraint("Horizontal", 6, 2, 13, 2),
    Sketcher.Constraint("Vertical", 16, 3, 17, 3),
    Sketcher.Constraint("Vertical", 1, 2, 4, 2),
    Sketcher.Constraint("Vertical", 3, 2, 6, 2),
    Sketcher.Constraint("Vertical", 9, 2, 12, 2),
    Sketcher.Constraint("Vertical", 11, 2, 14, 2),
    Sketcher.Constraint("Equal", 6, 8),
    Sketcher.Constraint("Equal", 3, 5),
    Sketcher.Constraint("Diameter", 16, 4.5),
    Sketcher.Constraint("DistanceY", 1, 2, 1, 1, 8.0),
    Sketcher.Constraint("DistanceX", 0, 2, 0, 1, 6.5),
    Sketcher.Constraint("DistanceY", 17, 3, 16, 3, 15.0),
    Sketcher.Constraint("DistanceX", 10, 2, 1, 2, 13.5),
    Sketcher.Constraint("DistanceX", -1, 1, 16, 3, 177.5),
    Sketcher.Constraint("DistanceY", -1, 1, 16, 3, 74.91),
    Sketcher.Constraint("DistanceX", -1, 1, 0, 2, 184.25),
])
pocket4 = doc.addObject("PartDesign::Pocket", "Pocket003")
body.addObject(pocket4)
pocket4.Profile = sketch6
pocket4.Type = "ThroughAll"

# Sketch on XY plane
sketch7 = doc.addObject("Sketcher::SketchObject", "Sketch006")
body.addObject(sketch7)
sketch7.AttachmentSupport = (doc.XY_Plane, [""])
sketch7.MapMode = "FlatFace"
sketch7.AttachmentOffset = App.Placement(App.Vector(0, 0, 6.5), App.Rotation())
sketch7.addGeometry([
    Part.Circle(App.Vector(52.5, 96, 0), App.Vector(0, 0, 1), 2.2),
    Part.Circle(App.Vector(76.5, 96, 0), App.Vector(0, 0, 1), 2.2),
    Part.Circle(App.Vector(278.5, 96, 0), App.Vector(0, 0, 1), 2.2),
    Part.Circle(App.Vector(302.5, 96, 0), App.Vector(0, 0, 1), 2.2),
], False)
sketch7.addConstraint([
    Sketcher.Constraint("Equal", 0, 1),
    Sketcher.Constraint("Equal", 1, 2),
    Sketcher.Constraint("Equal", 2, 3),
    Sketcher.Constraint("Horizontal", 0, 3, 1, 3),
    Sketcher.Constraint("Horizontal", 1, 3, 2, 3),
    Sketcher.Constraint("Horizontal", 2, 3, 3, 3),
    Sketcher.Constraint("Diameter", 0, 4.5),
    Sketcher.Constraint("DistanceX", 0, 3, 1, 3, 24.0),
    Sketcher.Constraint("DistanceX", 2, 3, 3, 3, 24.0),
    Sketcher.Constraint("DistanceY", -1, 1, 0, 3, 96.0),
    Sketcher.Constraint("DistanceX", 1, 3, 2, 3, 202.0),
    Sketcher.Constraint("DistanceX", -1, 1, 0, 3, 52.5),
])
pocket5 = doc.addObject("PartDesign::Pocket", "Pocket004")
body.addObject(pocket5)
pocket5.Profile = sketch7
pocket5.Type = "ThroughAll"

# Sketch on XY plane
sketch8 = doc.addObject("Sketcher::SketchObject", "Sketch007")
body.addObject(sketch8)
sketch8.AttachmentSupport = (doc.XY_Plane, [""])
sketch8.MapMode = "FlatFace"
sketch8.AttachmentOffset = App.Placement(App.Vector(0, 0, 6.5), App.Rotation())
sketch8.addGeometry([
    Part.Circle(App.Vector(44.5, 87, 0), App.Vector(0, 0, 1), 2),
    Part.Circle(App.Vector(117, 87, 0), App.Vector(0, 0, 1), 2),
    Part.Circle(App.Vector(117, 14.5, 0), App.Vector(0, 0, 1), 2),
    Part.Circle(App.Vector(44.5, 14.5, 0), App.Vector(0, 0, 1), 2),
], False)
sketch8.addConstraint([
    Sketcher.Constraint("Equal", 0, 1),
    Sketcher.Constraint("Equal", 1, 2),
    Sketcher.Constraint("Equal", 2, 3),
    Sketcher.Constraint("Horizontal", 0, 3, 1, 3),
    Sketcher.Constraint("Horizontal", 2, 3, 3, 3),
    Sketcher.Constraint("Vertical", 1, 3, 2, 3),
    Sketcher.Constraint("Vertical", 0, 3, 3, 3),
    Sketcher.Constraint("Diameter", 0, 4.0),
    Sketcher.Constraint("DistanceX", 0, 3, 1, 3, 72.5),
    Sketcher.Constraint("DistanceY", 2, 3, 1, 3, 72.5),
    Sketcher.Constraint("DistanceY", -1, 1, 0, 3, 87.0),
    Sketcher.Constraint("DistanceX", -1, 1, 1, 3, 117.0),
])
pocket6 = doc.addObject("PartDesign::Pocket", "Pocket005")
body.addObject(pocket6)
pocket6.Profile = sketch8
pocket6.Type = "ThroughAll"

# Sketch on XY plane
sketch9 = doc.addObject("Sketcher::SketchObject", "Sketch008")
body.addObject(sketch9)
sketch9.AttachmentSupport = (doc.XY_Plane, [""])
sketch9.MapMode = "FlatFace"
sketch9.AttachmentOffset = App.Placement(App.Vector(0, 0, 6.5), App.Rotation())
sketch9.addGeometry(Part.Circle(App.Vector(81, 51, 0), App.Vector(0, 0, 1), 38), False)
sketch9.addConstraint([
    Sketcher.Constraint("Diameter", 0, 75.0),
    Sketcher.Constraint("DistanceX", -1, 1, 0, 3, 80.75),
    Sketcher.Constraint("DistanceY", -1, 1, 0, 3, 50.75),
])
pocket7 = doc.addObject("PartDesign::Pocket", "Pocket006")
body.addObject(pocket7)
pocket7.Profile = sketch9
pocket7.Type = "ThroughAll"
doc.recompute()

chamfer = doc.addObject("PartDesign::Chamfer", "Chamfer")
body.addObject(chamfer)
chamfer.Base = (pocket7, edges_at(pocket7, [
    (355, -10, 3.25),
    (355, 120.5, 3.25),
    (0, -10, 3.25),
    (0, 120.5, 3.25),
]))
chamfer.Size = 2

# Sketch on XY plane
sketch10 = doc.addObject("Sketcher::SketchObject", "Sketch009")
body.addObject(sketch10)
sketch10.AttachmentSupport = (doc.XY_Plane, [""])
sketch10.MapMode = "FlatFace"
sketch10.AttachmentOffset = App.Placement(App.Vector(0, 0, 6.5), App.Rotation())
sketch10.addGeometry([
    Part.LineSegment(App.Vector(142, 81, 0), App.Vector(134, 81, 0)),  # 0
    Part.LineSegment(App.Vector(134, 81, 0), App.Vector(134, 74, 0)),  # 1
    Part.LineSegment(App.Vector(134, 74, 0), App.Vector(142, 74, 0)),  # 2
    Part.LineSegment(App.Vector(142, 74, 0), App.Vector(142, 81, 0)),  # 3
    Part.LineSegment(App.Vector(268, 81, 0), App.Vector(260, 81, 0)),  # 4
    Part.LineSegment(App.Vector(260, 81, 0), App.Vector(260, 74, 0)),  # 5
    Part.LineSegment(App.Vector(260, 74, 0), App.Vector(268, 74, 0)),  # 6
    Part.LineSegment(App.Vector(268, 74, 0), App.Vector(268, 81, 0)),  # 7
], False)
sketch10.addConstraint([
    Sketcher.Constraint("Coincident", 0, 2, 1, 1),
    Sketcher.Constraint("Coincident", 1, 2, 2, 1),
    Sketcher.Constraint("Coincident", 2, 2, 3, 1),
    Sketcher.Constraint("Coincident", 3, 2, 0, 1),
    Sketcher.Constraint("Coincident", 4, 2, 5, 1),
    Sketcher.Constraint("Coincident", 5, 2, 6, 1),
    Sketcher.Constraint("Coincident", 6, 2, 7, 1),
    Sketcher.Constraint("Coincident", 7, 2, 4, 1),
    Sketcher.Constraint("Horizontal", 0),
    Sketcher.Constraint("Vertical", 1),
    Sketcher.Constraint("Horizontal", 2),
    Sketcher.Constraint("Vertical", 3),
    Sketcher.Constraint("Horizontal", 4),
    Sketcher.Constraint("Vertical", 5),
    Sketcher.Constraint("Horizontal", 6),
    Sketcher.Constraint("Vertical", 7),
    Sketcher.Constraint("Horizontal", 3, 2, 4, 2),
    Sketcher.Constraint("Horizontal", 2, 2, 5, 2),
    Sketcher.Constraint("Equal", 2, 4),
    Sketcher.Constraint("DistanceX", 0, 2, 0, 1, 8.0),
    Sketcher.Constraint("DistanceY", 1, 2, 1, 1, 6.5),
    Sketcher.Constraint("DistanceX", -1, 1, 0, 2, 134.0),
    Sketcher.Constraint("DistanceY", -1, 1, 0, 2, 81.0),
    Sketcher.Constraint("DistanceX", -1, 1, 4, 2, 260.5),
])
pocket8 = doc.addObject("PartDesign::Pocket", "Pocket007")
body.addObject(pocket8)
pocket8.Profile = sketch10
pocket8.Type = "ThroughAll"

doc.recompute()
